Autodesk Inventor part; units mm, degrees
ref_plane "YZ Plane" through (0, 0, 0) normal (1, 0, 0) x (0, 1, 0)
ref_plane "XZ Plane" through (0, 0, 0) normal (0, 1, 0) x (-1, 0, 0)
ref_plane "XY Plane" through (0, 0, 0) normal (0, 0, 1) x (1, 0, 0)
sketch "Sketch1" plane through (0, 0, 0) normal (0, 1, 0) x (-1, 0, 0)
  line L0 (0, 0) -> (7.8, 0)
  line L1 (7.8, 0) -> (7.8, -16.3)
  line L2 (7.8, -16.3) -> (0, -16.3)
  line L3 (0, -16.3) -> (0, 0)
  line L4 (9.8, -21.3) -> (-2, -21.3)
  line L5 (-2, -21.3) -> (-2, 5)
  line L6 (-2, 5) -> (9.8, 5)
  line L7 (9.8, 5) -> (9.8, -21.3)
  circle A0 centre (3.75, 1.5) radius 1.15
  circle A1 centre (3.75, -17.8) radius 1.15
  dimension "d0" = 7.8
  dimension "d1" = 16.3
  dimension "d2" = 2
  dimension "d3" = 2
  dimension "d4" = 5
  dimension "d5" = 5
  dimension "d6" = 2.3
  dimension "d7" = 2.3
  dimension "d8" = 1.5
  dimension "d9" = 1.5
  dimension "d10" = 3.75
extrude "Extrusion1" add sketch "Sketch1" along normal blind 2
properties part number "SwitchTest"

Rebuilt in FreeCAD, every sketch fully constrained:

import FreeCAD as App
import Part
import Sketcher

V = App.Vector
Q = App.Units.Quantity

doc = App.newDocument("Part")
params = doc.addObject("Spreadsheet::Sheet", "Params")
for row, (alias, value) in enumerate([
    ("sketch1_diameter", "2.3 mm"),
    ("sketch1_width", "7.8 mm"),
    ("sketch1_height", "16.3 mm"),
    ("pad1_length", "2 mm"),
], start=1):
    params.set(f"A{row}", alias)
    params.set(f"B{row}", "=" + value)
    params.setAlias(f"B{row}", alias)

body = doc.addObject("PartDesign::Body", "Body")

sketch1 = doc.addObject("Sketcher::SketchObject", "Sketch")
body.addObject(sketch1)
sketch1.AttachmentSupport = (doc.XZ_Plane, [""])
sketch1.MapMode = "FlatFace"
sketch1.addGeometry(Part.LineSegment(V(2, -21.3, 0), V(-9.8, -21.3, 0)), False)
sketch1.addGeometry(Part.LineSegment(V(-9.8, -21.3, 0), V(-9.8, 5, 0)), False)
sketch1.addGeometry(Part.LineSegment(V(-9.8, 5, 0), V(2, 5, 0)), False)
sketch1.addGeometry(Part.LineSegment(V(2, 5, 0), V(2, -21.3, 0)), False)
sketch1.addGeometry(Part.Circle(V(-3.8, -17.8, 0), V(0, 0, 1), 1.1), False)
sketch1.addGeometry(Part.Circle(V(-3.8, 1.5, 0), V(0, 0, 1), 1.1), False)
sketch1.addGeometry(Part.LineSegment(V(0, -16.3, 0), V(0, 0, 0)), False)
sketch1.addGeometry(Part.LineSegment(V(0, 0, 0), V(-7.8, 0, 0)), False)
sketch1.addGeometry(Part.LineSegment(V(-7.8, 0, 0), V(-7.8, -16.3, 0)), False)
sketch1.addGeometry(Part.LineSegment(V(-7.8, -16.3, 0), V(0, -16.3, 0)), False)
sketch1.addConstraint(Sketcher.Constraint("Coincident", 0, 2, 1, 1))
sketch1.addConstraint(Sketcher.Constraint("Coincident", 1, 2, 2, 1))
sketch1.addConstraint(Sketcher.Constraint("Coincident", 2, 2, 3, 1))
sketch1.addConstraint(Sketcher.Constraint("Coincident", 3, 2, 0, 1))
sketch1.addConstraint(Sketcher.Constraint("Coincident", 6, 2, 7, 1))
sketch1.addConstraint(Sketcher.Constraint("Coincident", 7, 2, 8, 1))
sketch1.addConstraint(Sketcher.Constraint("Coincident", 8, 2, 9, 1))
sketch1.addConstraint(Sketcher.Constraint("Coincident", 9, 2, 6, 1))
sketch1.addConstraint(Sketcher.Constraint("Horizontal", 0))
sketch1.addConstraint(Sketcher.Constraint("Vertical", 1))
sketch1.addConstraint(Sketcher.Constraint("Horizontal", 2))
sketch1.addConstraint(Sketcher.Constraint("Vertical", 3))
sketch1.addConstraint(Sketcher.Constraint("Vertical", 6))
sketch1.addConstraint(Sketcher.Constraint("Horizontal", 7))
sketch1.addConstraint(Sketcher.Constraint("Vertical", 8))
sketch1.addConstraint(Sketcher.Constraint("Horizontal", 9))
sketch1.addConstraint(Sketcher.Constraint("Coincident", 6, 2, -1, 1))
sketch1.addConstraint(Sketcher.Constraint("Equal", 4, 5))
sketch1.addConstraint(Sketcher.Constraint("Vertical", 4, 3, 5, 3))
sketch1.addConstraint(Sketcher.Constraint("Diameter", 4, Q("2.3 mm")))
sketch1.addConstraint(Sketcher.Constraint("DistanceX", 7, 2, 7, 1, Q("7.8 mm")))
sketch1.addConstraint(Sketcher.Constraint("DistanceY", 6, 1, 6, 2, Q("16.3 mm")))
sketch1.addConstraint(Sketcher.Constraint("DistanceY", -1, 1, 1, 2, Q("5 mm")))
sketch1.addConstraint(Sketcher.Constraint("DistanceX", -1, 1, 2, 2, Q("2 mm")))
sketch1.addConstraint(Sketcher.Constraint("DistanceX", 1, 2, 7, 2, Q("2 mm")))
sketch1.addConstraint(Sketcher.Constraint("DistanceY", 0, 2, 8, 2, Q("5 mm")))
sketch1.addConstraint(Sketcher.Constraint("DistanceY", -1, 1, 5, 3, Q("1.5 mm")))
sketch1.addConstraint(Sketcher.Constraint("DistanceY", 4, 3, 8, 2, Q("1.5 mm")))
sketch1.addConstraint(Sketcher.Constraint("DistanceX", 4, 3, -1, 1, Q("3.75 mm")))
sketch1.setExpression("Constraints[19]", "Params.sketch1_diameter")
sketch1.setExpression("Constraints[20]", "Params.sketch1_width")
sketch1.setExpression("Constraints[21]", "Params.sketch1_height")
pad1 = doc.addObject("PartDesign::Pad", "Pad")
body.addObject(pad1)
pad1.Profile = sketch1
pad1.setExpression("Length", "Params.pad1_length")
pad1.Reversed = True

doc.recompute()
